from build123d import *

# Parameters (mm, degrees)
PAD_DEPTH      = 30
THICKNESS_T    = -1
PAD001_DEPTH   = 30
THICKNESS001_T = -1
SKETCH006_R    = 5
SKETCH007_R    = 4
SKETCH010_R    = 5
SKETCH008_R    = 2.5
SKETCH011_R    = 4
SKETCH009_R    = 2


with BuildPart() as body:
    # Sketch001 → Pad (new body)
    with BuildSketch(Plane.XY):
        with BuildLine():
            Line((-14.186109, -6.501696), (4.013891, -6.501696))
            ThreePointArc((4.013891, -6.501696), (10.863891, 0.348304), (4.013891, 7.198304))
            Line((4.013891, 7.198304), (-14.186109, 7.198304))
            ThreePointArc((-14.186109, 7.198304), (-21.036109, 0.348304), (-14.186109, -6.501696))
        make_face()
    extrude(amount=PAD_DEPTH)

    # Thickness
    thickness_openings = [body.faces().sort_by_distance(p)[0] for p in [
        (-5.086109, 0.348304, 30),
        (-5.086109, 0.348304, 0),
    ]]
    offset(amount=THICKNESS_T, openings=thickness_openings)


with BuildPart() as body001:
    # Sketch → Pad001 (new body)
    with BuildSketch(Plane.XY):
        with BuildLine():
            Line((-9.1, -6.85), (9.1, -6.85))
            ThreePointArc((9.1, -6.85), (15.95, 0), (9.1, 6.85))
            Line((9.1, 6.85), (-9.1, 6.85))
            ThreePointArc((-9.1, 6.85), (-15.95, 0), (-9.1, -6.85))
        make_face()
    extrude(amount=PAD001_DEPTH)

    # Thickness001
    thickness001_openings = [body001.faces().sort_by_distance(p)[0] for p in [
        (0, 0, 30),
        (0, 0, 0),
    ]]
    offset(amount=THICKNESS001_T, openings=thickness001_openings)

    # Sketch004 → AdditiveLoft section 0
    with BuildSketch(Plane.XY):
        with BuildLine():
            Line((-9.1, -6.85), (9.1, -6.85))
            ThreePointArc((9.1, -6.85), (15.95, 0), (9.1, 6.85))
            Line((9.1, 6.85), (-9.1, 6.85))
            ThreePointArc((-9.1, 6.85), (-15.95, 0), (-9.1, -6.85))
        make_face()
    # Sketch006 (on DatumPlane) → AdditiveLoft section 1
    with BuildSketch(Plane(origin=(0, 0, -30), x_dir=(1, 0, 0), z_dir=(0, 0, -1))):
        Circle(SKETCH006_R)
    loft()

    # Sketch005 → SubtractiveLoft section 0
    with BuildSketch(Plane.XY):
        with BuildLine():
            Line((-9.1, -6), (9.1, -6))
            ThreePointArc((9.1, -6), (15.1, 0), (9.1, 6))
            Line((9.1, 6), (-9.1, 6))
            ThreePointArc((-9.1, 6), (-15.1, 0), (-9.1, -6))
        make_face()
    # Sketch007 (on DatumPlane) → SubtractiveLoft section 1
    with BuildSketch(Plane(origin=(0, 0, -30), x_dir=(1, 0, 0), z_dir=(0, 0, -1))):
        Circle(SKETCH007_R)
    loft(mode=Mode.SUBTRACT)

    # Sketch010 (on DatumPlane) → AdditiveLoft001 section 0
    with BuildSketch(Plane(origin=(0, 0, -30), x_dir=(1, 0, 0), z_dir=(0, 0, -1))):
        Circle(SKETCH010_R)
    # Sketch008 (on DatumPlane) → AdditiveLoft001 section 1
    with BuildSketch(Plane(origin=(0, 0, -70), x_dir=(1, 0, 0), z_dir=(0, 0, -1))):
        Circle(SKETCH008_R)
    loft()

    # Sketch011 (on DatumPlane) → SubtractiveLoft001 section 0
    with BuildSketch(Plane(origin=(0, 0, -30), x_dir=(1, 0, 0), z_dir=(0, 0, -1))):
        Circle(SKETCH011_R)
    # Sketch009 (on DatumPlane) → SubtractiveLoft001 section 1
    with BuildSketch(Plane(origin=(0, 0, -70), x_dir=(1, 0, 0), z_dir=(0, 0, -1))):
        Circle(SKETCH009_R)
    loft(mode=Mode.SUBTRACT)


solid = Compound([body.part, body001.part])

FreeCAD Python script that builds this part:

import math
import FreeCAD as App
import Part
import Sketcher


def faces_at(feature, points):
    """Names of the faces that lie closest to the given points."""
    faces = feature.Shape.Faces
    near = lambda p: min(range(len(faces)), key=lambda i: faces[i].distToShape(Part.Vertex(*p))[0])
    return sorted({f"Face{near(p) + 1}" for p in points})

doc = App.newDocument("Part")
body = doc.addObject("PartDesign::Body", "Body")

# Sketch on XY plane
sketch1 = body.newObject("Sketcher::SketchObject", "Sketch")
sketch1.AttachmentSupport = (doc.getObject("XY_Plane"), [""])
sketch1.MapMode = "FlatFace"
sketch1.addGeometry(Part.LineSegment(App.Vector(-14.186109, -6.501696, 0), App.Vector(4.013891, -6.501696, 0)), False)
sketch1.addGeometry(Part.ArcOfCircle(Part.Circle(App.Vector(4.013891, 0.348304, 0), App.Vector(0, 0, 1), 6.85), math.radians(-90), math.radians(90)), False)
sketch1.addGeometry(Part.LineSegment(App.Vector(4.013891, 7.198304, 0), App.Vector(-14.186109, 7.198304, 0)), False)
sketch1.addGeometry(Part.ArcOfCircle(Part.Circle(App.Vector(-14.186109, 0.348304, 0), App.Vector(0, 0, 1), 6.85), math.radians(90), math.radians(270)), False)
sketch1.addConstraint(Sketcher.Constraint("Tangent", 0, 2, 1, 1))
sketch1.addConstraint(Sketcher.Constraint("Tangent", 1, 2, 2, 1))
sketch1.addConstraint(Sketcher.Constraint("Tangent", 2, 2, 3, 1))
sketch1.addConstraint(Sketcher.Constraint("Tangent", 3, 2, 0, 1))
sketch1.addConstraint(Sketcher.Constraint("Horizontal", 0))
sketch1.addConstraint(Sketcher.Constraint("Horizontal", 2))
sketch1.addConstraint(Sketcher.Constraint("Radius", 1, 6.85))
sketch1.addConstraint(Sketcher.Constraint("DistanceX", 0, 1, 0, 2, 18.2))
sketch1.addConstraint(Sketcher.Constraint("DistanceX", -1, 1, 1, 3, 4.013891))
sketch1.addConstraint(Sketcher.Constraint("DistanceY", -1, 1, 1, 3, 0.348304))
pad1 = body.newObject("PartDesign::Pad", "Pad")
pad1.Profile = sketch1
pad1.Length = 30
doc.recompute()

thickness = body.newObject("PartDesign::Thickness", "Thickness")
thickness.Base = (pad1, faces_at(pad1, [(-5.086, 0.348, 30), (-5.086, 0.348, 0)]))
thickness.Value = 1
thickness.Reversed = True
thickness.Join = "Arc"
body2 = doc.addObject("PartDesign::Body", "Body001")

# Sketch on XY plane
sketch2 = body2.newObject("Sketcher::SketchObject", "Sketch001")
sketch2.AttachmentSupport = (doc.getObject("XY_Plane001"), [""])
sketch2.MapMode = "FlatFace"
sketch2.addGeometry(Part.LineSegment(App.Vector(-9.1, -6.85, 0), App.Vector(9.1, -6.85, 0)), False)
sketch2.addGeometry(Part.ArcOfCircle(Part.Circle(App.Vector(9.1, 0, 0), App.Vector(0, 0, 1), 6.85), math.radians(-90), math.radians(90)), False)
sketch2.addGeometry(Part.LineSegment(App.Vector(9.1, 6.85, 0), App.Vector(-9.1, 6.85, 0)), False)
sketch2.addGeometry(Part.ArcOfCircle(Part.Circle(App.Vector(-9.1, 0, 0), App.Vector(0, 0, 1), 6.85), math.radians(90), math.radians(270)), False)
sketch2.addConstraint(Sketcher.Constraint("Tangent", 0, 2, 1, 1))
sketch2.addConstraint(Sketcher.Constraint("Tangent", 1, 2, 2, 1))
sketch2.addConstraint(Sketcher.Constraint("Tangent", 2, 2, 3, 1))
sketch2.addConstraint(Sketcher.Constraint("Tangent", 3, 2, 0, 1))
sketch2.addConstraint(Sketcher.Constraint("Horizontal", 0))
sketch2.addConstraint(Sketcher.Constraint("Horizontal", 2))
sketch2.addConstraint(Sketcher.Constraint("Symmetric", 1, 3, 3, 3, -1, 1))
sketch2.addConstraint(Sketcher.Constraint("Radius", 1, 6.85))
sketch2.addConstraint(Sketcher.Constraint("DistanceX", 0, 1, 0, 2, 18.2))
pad2 = body2.newObject("PartDesign::Pad", "Pad001")
pad2.Profile = sketch2
pad2.Length = 30
doc.recompute()

thickness2 = body2.newObject("PartDesign::Thickness", "Thickness001")
thickness2.Base = (pad2, faces_at(pad2, [(0, 0, 30), (0, 0, 0)]))
thickness2.Value = 1
thickness2.Reversed = True
thickness2.Join = "Arc"

# Sketch on XY plane
sketch3 = body2.newObject("Sketcher::SketchObject", "Sketch002")
sketch3.AttachmentSupport = (doc.getObject("XY_Plane001"), [""])
sketch3.MapMode = "FlatFace"
sketch3.addGeometry(Part.LineSegment(App.Vector(-9.1, -6.85, 0), App.Vector(9.1, -6.85, 0)), False)
sketch3.addGeometry(Part.ArcOfCircle(Part.Circle(App.Vector(9.1, 0, 0), App.Vector(0, 0, 1), 6.85), math.radians(-90), math.radians(90)), False)
sketch3.addGeometry(Part.LineSegment(App.Vector(9.1, 6.85, 0), App.Vector(-9.1, 6.85, 0)), False)
sketch3.addGeometry(Part.ArcOfCircle(Part.Circle(App.Vector(-9.1, 0, 0), App.Vector(0, 0, 1), 6.85), math.radians(90), math.radians(270)), False)
sketch3.addConstraint(Sketcher.Constraint("Tangent", 0, 2, 1, 1))
sketch3.addConstraint(Sketcher.Constraint("Tangent", 1, 2, 2, 1))
sketch3.addConstraint(Sketcher.Constraint("Tangent", 2, 2, 3, 1))
sketch3.addConstraint(Sketcher.Constraint("Tangent", 3, 2, 0, 1))
sketch3.addConstraint(Sketcher.Constraint("Horizontal", 0))
sketch3.addConstraint(Sketcher.Constraint("Horizontal", 2))
sketch3.addConstraint(Sketcher.Constraint("Symmetric", 1, 3, 3, 3, -1, 1))
sketch3.addConstraint(Sketcher.Constraint("Radius", 1, 6.85))
sketch3.addConstraint(Sketcher.Constraint("DistanceX", 0, 1, 0, 2, 18.2))

# Sketch on XY plane
sketch4 = body2.newObject("Sketcher::SketchObject", "Sketch003")
sketch4.AttachmentSupport = (doc.getObject("XY_Plane001"), [""])
sketch4.MapMode = "FlatFace"
sketch4.AttachmentOffset = App.Placement(App.Vector(0, 0, -30), App.Rotation())
sketch4.addGeometry(Part.Circle(App.Vector(0, 0, 0), App.Vector(0, 0, 1), 5), False)
sketch4.addConstraint(Sketcher.Constraint("Coincident", 0, 3, -1, 1))
sketch4.addConstraint(Sketcher.Constraint("Diameter", 0, 10.0))

additiveloft = body2.newObject("PartDesign::AdditiveLoft", "AdditiveLoft")
additiveloft.Profile = sketch3
additiveloft.Sections = [sketch4]

# Sketch on XY plane
sketch5 = body2.newObject("Sketcher::SketchObject", "Sketch004")
sketch5.AttachmentSupport = (doc.getObject("XY_Plane001"), [""])
sketch5.MapMode = "FlatFace"
sketch5.addGeometry(Part.LineSegment(App.Vector(-9.1, -6, 0), App.Vector(9.1, -6, 0)), False)
sketch5.addGeometry(Part.ArcOfCircle(Part.Circle(App.Vector(9.1, 0, 0), App.Vector(0, 0, 1), 6), math.radians(-90), math.radians(90)), False)
sketch5.addGeometry(Part.LineSegment(App.Vector(9.1, 6, 0), App.Vector(-9.1, 6, 0)), False)
sketch5.addGeometry(Part.ArcOfCircle(Part.Circle(App.Vector(-9.1, 0, 0), App.Vector(0, 0, 1), 6), math.radians(90), math.radians(270)), False)
sketch5.addConstraint(Sketcher.Constraint("Tangent", 0, 2, 1, 1))
sketch5.addConstraint(Sketcher.Constraint("Tangent", 1, 2, 2, 1))
sketch5.addConstraint(Sketcher.Constraint("Tangent", 2, 2, 3, 1))
sketch5.addConstraint(Sketcher.Constraint("Tangent", 3, 2, 0, 1))
sketch5.addConstraint(Sketcher.Constraint("Horizontal", 0))
sketch5.addConstraint(Sketcher.Constraint("Horizontal", 2))
sketch5.addConstraint(Sketcher.Constraint("Symmetric", 1, 3, 3, 3, -1, 1))
sketch5.addConstraint(Sketcher.Constraint("Radius", 1, 6.0))
sketch5.addConstraint(Sketcher.Constraint("DistanceX", 0, 1, 0, 2, 18.2))

# Sketch on XY plane
sketch6 = body2.newObject("Sketcher::SketchObject", "Sketch005")
sketch6.AttachmentSupport = (doc.getObject("XY_Plane001"), [""])
sketch6.MapMode = "FlatFace"
sketch6.AttachmentOffset = App.Placement(App.Vector(0, 0, -30), App.Rotation())
sketch6.addGeometry(Part.Circle(App.Vector(0, 0, 0), App.Vector(0, 0, 1), 4), False)
sketch6.addConstraint(Sketcher.Constraint("Coincident", 0, 3, -1, 1))
sketch6.addConstraint(Sketcher.Constraint("Diameter", 0, 8.0))

subtractiveloft = body2.newObject("PartDesign::SubtractiveLoft", "SubtractiveLoft")
subtractiveloft.Profile = sketch5
subtractiveloft.Sections = [sketch6]

# Sketch on XY plane
sketch7 = body2.newObject("Sketcher::SketchObject", "Sketch006")
sketch7.AttachmentSupport = (doc.getObject("XY_Plane001"), [""])
sketch7.MapMode = "FlatFace"
sketch7.AttachmentOffset = App.Placement(App.Vector(0, 0, -30), App.Rotation())
sketch7.addGeometry(Part.Circle(App.Vector(0, 0, 0), App.Vector(0, 0, 1), 5), False)
sketch7.addConstraint(Sketcher.Constraint("Coincident", 0, 3, -1, 1))
sketch7.addConstraint(Sketcher.Constraint("Diameter", 0, 10.0))

# Sketch on XY plane
sketch8 = body2.newObject("Sketcher::SketchObject", "Sketch007")
sketch8.AttachmentSupport = (doc.getObject("XY_Plane001"), [""])
sketch8.MapMode = "FlatFace"
sketch8.AttachmentOffset = App.Placement(App.Vector(0, 0, -70), App.Rotation())
sketch8.addGeometry(Part.Circle(App.Vector(0, 0, 0), App.Vector(0, 0, 1), 2.5), False)
sketch8.addConstraint(Sketcher.Constraint("Coincident", 0, 3, -1, 1))
sketch8.addConstraint(Sketcher.Constraint("Diameter", 0, 5.0))

additiveloft2 = body2.newObject("PartDesign::AdditiveLoft", "AdditiveLoft001")
additiveloft2.Profile = sketch7
additiveloft2.Sections = [sketch8]

# Sketch on XY plane
sketch9 = body2.newObject("Sketcher::SketchObject", "Sketch008")
sketch9.AttachmentSupport = (doc.getObject("XY_Plane001"), [""])
sketch9.MapMode = "FlatFace"
sketch9.AttachmentOffset = App.Placement(App.Vector(0, 0, -30), App.Rotation())
sketch9.addGeometry(Part.Circle(App.Vector(0, 0, 0), App.Vector(0, 0, 1), 4), False)
sketch9.addConstraint(Sketcher.Constraint("Coincident", 0, 3, -1, 1))
sketch9.addConstraint(Sketcher.Constraint("Diameter", 0, 8.0))

# Sketch on XY plane
sketch10 = body2.newObject("Sketcher::SketchObject", "Sketch009")
sketch10.AttachmentSupport = (doc.getObject("XY_Plane001"), [""])
sketch10.MapMode = "FlatFace"
sketch10.AttachmentOffset = App.Placement(App.Vector(0, 0, -70), App.Rotation())
sketch10.addGeometry(Part.Circle(App.Vector(0, 0, 0), App.Vector(0, 0, 1), 2), False)
sketch10.addConstraint(Sketcher.Constraint("Coincident", 0, 3, -1, 1))
sketch10.addConstraint(Sketcher.Constraint("Diameter", 0, 4.0))

subtractiveloft2 = body2.newObject("PartDesign::SubtractiveLoft", "SubtractiveLoft001")
subtractiveloft2.Profile = sketch9
subtractiveloft2.Sections = [sketch10]

doc.recompute()
